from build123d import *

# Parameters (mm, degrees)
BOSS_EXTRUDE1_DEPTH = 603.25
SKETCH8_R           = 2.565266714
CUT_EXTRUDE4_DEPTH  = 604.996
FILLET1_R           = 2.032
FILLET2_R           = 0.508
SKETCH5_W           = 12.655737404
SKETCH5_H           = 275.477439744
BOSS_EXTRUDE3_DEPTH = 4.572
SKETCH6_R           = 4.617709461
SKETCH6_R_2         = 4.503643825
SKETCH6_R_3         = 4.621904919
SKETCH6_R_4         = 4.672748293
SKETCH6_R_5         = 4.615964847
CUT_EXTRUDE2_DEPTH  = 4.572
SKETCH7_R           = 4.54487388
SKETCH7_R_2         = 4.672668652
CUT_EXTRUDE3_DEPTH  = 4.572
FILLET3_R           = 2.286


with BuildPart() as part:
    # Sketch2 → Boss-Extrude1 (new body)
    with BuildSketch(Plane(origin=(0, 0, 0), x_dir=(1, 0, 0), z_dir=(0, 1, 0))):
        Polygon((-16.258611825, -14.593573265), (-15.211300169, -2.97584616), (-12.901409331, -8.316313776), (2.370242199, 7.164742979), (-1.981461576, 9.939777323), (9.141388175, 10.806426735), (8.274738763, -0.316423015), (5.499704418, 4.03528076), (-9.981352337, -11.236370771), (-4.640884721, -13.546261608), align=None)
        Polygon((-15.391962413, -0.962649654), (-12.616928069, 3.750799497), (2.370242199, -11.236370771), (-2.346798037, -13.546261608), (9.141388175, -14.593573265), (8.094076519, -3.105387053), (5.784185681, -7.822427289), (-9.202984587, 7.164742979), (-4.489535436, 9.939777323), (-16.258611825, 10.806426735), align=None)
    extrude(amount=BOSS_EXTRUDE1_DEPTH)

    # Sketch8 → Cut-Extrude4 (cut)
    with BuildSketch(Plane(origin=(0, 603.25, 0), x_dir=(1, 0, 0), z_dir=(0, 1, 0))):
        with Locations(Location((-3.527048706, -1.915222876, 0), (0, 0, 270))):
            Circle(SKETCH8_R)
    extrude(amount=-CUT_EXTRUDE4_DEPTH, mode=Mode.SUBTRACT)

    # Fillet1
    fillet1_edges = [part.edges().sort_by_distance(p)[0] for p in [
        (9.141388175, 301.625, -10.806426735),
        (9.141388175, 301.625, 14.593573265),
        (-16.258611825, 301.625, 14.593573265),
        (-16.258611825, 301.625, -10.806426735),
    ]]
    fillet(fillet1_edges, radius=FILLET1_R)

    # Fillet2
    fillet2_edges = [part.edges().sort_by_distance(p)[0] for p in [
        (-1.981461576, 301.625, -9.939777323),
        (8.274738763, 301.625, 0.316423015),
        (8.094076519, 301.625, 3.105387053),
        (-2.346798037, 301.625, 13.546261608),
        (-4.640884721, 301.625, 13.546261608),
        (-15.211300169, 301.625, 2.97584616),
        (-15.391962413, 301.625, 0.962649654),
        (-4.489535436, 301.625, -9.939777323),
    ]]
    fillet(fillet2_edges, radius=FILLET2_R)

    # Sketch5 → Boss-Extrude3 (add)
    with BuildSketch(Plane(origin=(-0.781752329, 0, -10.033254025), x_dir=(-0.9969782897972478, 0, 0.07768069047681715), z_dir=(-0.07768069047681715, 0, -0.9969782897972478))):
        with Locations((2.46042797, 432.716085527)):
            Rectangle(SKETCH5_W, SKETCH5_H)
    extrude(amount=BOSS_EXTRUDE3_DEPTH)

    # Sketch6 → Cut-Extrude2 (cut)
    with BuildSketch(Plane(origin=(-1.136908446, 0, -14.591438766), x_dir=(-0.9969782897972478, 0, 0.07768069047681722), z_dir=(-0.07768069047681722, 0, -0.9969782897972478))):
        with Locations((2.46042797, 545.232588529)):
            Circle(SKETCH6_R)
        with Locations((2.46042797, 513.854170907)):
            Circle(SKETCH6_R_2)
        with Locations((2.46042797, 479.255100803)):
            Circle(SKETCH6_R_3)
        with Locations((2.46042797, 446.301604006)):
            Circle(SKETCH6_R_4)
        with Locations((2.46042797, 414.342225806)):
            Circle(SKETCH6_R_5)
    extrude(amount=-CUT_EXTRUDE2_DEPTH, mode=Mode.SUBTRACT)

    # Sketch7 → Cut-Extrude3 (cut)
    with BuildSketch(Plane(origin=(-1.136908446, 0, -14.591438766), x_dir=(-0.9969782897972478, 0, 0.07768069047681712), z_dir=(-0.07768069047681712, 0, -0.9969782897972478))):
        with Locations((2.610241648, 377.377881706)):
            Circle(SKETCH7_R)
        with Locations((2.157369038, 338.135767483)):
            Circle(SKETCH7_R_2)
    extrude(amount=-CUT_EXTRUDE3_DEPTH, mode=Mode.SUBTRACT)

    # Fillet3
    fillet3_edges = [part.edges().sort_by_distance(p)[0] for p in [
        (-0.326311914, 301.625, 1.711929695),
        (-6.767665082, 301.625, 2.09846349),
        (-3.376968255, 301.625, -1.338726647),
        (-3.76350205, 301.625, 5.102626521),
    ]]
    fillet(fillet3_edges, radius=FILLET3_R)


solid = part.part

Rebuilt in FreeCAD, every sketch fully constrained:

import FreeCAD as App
import Part
import Sketcher
from FreeCAD import Vector
Q = App.Units.Quantity


def edges_at(feature, points):
    """Names of the edges that pass closest to the given points."""
    edges = feature.Shape.Edges
    near = lambda p: min(range(len(edges)), key=lambda i: edges[i].distToShape(Part.Vertex(*p))[0])
    return sorted({f"Edge{near(p) + 1}" for p in points})

doc = App.newDocument("Part")
body = doc.addObject("PartDesign::Body", "Body")

# Sketch on XZ plane
sketch1 = body.newObject("Sketcher::SketchObject", "Sketch")
sketch1.AttachmentSupport = (doc.getObject("XZ_Plane"), [""])
sketch1.MapMode = "FlatFace"
sketch1.addGeometry([
    Part.LineSegment(Vector(-16.258612, 14.593573, 0), Vector(-4.640885, 13.546262, 0)),  # 0
    Part.LineSegment(Vector(-4.640885, 13.546262, 0), Vector(-9.981352, 11.236371, 0)),  # 1
    Part.LineSegment(Vector(-9.981352, 11.236371, 0), Vector(-3.763502, 5.102627, 0)),  # 2
    Part.LineSegment(Vector(-3.763502, 5.102627, 0), Vector(2.370242, 11.236371, 0)),  # 3
    Part.LineSegment(Vector(2.370242, 11.236371, 0), Vector(-2.346798, 13.546262, 0)),  # 4
    Part.LineSegment(Vector(-2.346798, 13.546262, 0), Vector(9.141388, 14.593573, 0)),  # 5
    Part.LineSegment(Vector(9.141388, 14.593573, 0), Vector(8.094077, 3.105387, 0)),  # 6
    Part.LineSegment(Vector(8.094077, 3.105387, 0), Vector(5.784186, 7.822427, 0)),  # 7
    Part.LineSegment(Vector(5.784186, 7.822427, 0), Vector(-0.326312, 1.71193, 0)),  # 8
    Part.LineSegment(Vector(-0.326312, 1.71193, 0), Vector(5.499704, -4.035281, 0)),  # 9
    Part.LineSegment(Vector(5.499704, -4.035281, 0), Vector(8.274739, 0.316423, 0)),  # 10
    Part.LineSegment(Vector(8.274739, 0.316423, 0), Vector(9.141388, -10.806427, 0)),  # 11
    Part.LineSegment(Vector(9.141388, -10.806427, 0), Vector(-1.981462, -9.939777, 0)),  # 12
    Part.LineSegment(Vector(-1.981462, -9.939777, 0), Vector(2.370242, -7.164743, 0)),  # 13
    Part.LineSegment(Vector(2.370242, -7.164743, 0), Vector(-3.376968, -1.338727, 0)),  # 14
    Part.LineSegment(Vector(-3.376968, -1.338727, 0), Vector(-9.202985, -7.164743, 0)),  # 15
    Part.LineSegment(Vector(-9.202985, -7.164743, 0), Vector(-4.489535, -9.939777, 0)),  # 16
    Part.LineSegment(Vector(-4.489535, -9.939777, 0), Vector(-16.258612, -10.806427, 0)),  # 17
    Part.LineSegment(Vector(-16.258612, -10.806427, 0), Vector(-15.391962, 0.96265, 0)),  # 18
    Part.LineSegment(Vector(-15.391962, 0.96265, 0), Vector(-12.616928, -3.750799, 0)),  # 19
    Part.LineSegment(Vector(-12.616928, -3.750799, 0), Vector(-6.767665, 2.098463, 0)),  # 20
    Part.LineSegment(Vector(-6.767665, 2.098463, 0), Vector(-12.901409, 8.316314, 0)),  # 21
    Part.LineSegment(Vector(-12.901409, 8.316314, 0), Vector(-15.2113, 2.975846, 0)),  # 22
    Part.LineSegment(Vector(-15.2113, 2.975846, 0), Vector(-16.258612, 14.593573, 0)),  # 23
], False)
sketch1.addConstraint([
    Sketcher.Constraint("Coincident", 0, 2, 1, 1),
    Sketcher.Constraint("Coincident", 1, 2, 2, 1),
    Sketcher.Constraint("Coincident", 2, 2, 3, 1),
    Sketcher.Constraint("Coincident", 3, 2, 4, 1),
    Sketcher.Constraint("Coincident", 4, 2, 5, 1),
    Sketcher.Constraint("Coincident", 5, 2, 6, 1),
    Sketcher.Constraint("Coincident", 6, 2, 7, 1),
    Sketcher.Constraint("Coincident", 7, 2, 8, 1),
    Sketcher.Constraint("Coincident", 8, 2, 9, 1),
    Sketcher.Constraint("Coincident", 9, 2, 10, 1),
    Sketcher.Constraint("Coincident", 10, 2, 11, 1),
    Sketcher.Constraint("Coincident", 11, 2, 12, 1),
    Sketcher.Constraint("Coincident", 12, 2, 13, 1),
    Sketcher.Constraint("Coincident", 13, 2, 14, 1),
    Sketcher.Constraint("Coincident", 14, 2, 15, 1),
    Sketcher.Constraint("Coincident", 15, 2, 16, 1),
    Sketcher.Constraint("Coincident", 16, 2, 17, 1),
    Sketcher.Constraint("Coincident", 17, 2, 18, 1),
    Sketcher.Constraint("Coincident", 18, 2, 19, 1),
    Sketcher.Constraint("Coincident", 19, 2, 20, 1),
    Sketcher.Constraint("Coincident", 20, 2, 21, 1),
    Sketcher.Constraint("Coincident", 21, 2, 22, 1),
    Sketcher.Constraint("Coincident", 22, 2, 23, 1),
    Sketcher.Constraint("Coincident", 23, 2, 0, 1),
    Sketcher.Constraint("DistanceX", 9, 2, 7, 2, Q("0.0112 in")),
    Sketcher.Constraint("Distance", 2, Q("8.734099 mm")),
    Sketcher.Constraint("Distance", 21, Q("8.734099 mm")),
    Sketcher.Constraint("DistanceX", 4, 2, -1, 1, Q("2.346798 mm")),
    Sketcher.Constraint("DistanceY", 19, 2, -1, 1, Q("3.750799 mm")),
    Sketcher.Constraint("DistanceX", 22, 2, -1, 1, Q("15.2113 mm")),
    Sketcher.Constraint("DistanceY", 2, 2, 7, 2, Q("2.719801 mm")),
    Sketcher.Constraint("DistanceX", 8, 2, 11, 2, Q("9.4677 mm")),
    Sketcher.Constraint("DistanceX", 12, 2, 10, 2, Q("10.2562 mm")),
    Sketcher.Constraint("DistanceY", 12, 2, 10, 2, Q("10.2562 mm")),
    Sketcher.Constraint("DistanceY", 17, 2, 14, 2, Q("9.4677 mm")),
    Sketcher.Constraint("Distance", 8, Q("8.641549 mm")),
    Sketcher.Constraint("Distance", 11, Q("11.156562 mm")),
    Sketcher.Constraint("Distance", 12, Q("11.156562 mm")),
    Sketcher.Constraint("Distance", 15, Q("8.239231 mm")),
    Sketcher.Constraint("Distance", 16, Q("5.469682 mm")),
    Sketcher.Constraint("Distance", 19, Q("5.469682 mm")),
    Sketcher.Constraint("DistanceY", -1, 1, 0, 2, Q("13.546262 mm")),
    Sketcher.Constraint("DistanceY", -1, 1, 1, 2, Q("11.236371 mm")),
    Sketcher.Constraint("DistanceY", -1, 1, 3, 2, Q("11.236371 mm")),
    Sketcher.Constraint("DistanceY", -1, 1, 4, 2, Q("13.546262 mm")),
    Sketcher.Constraint("DistanceX", -1, 1, 5, 2, Q("9.141388 mm")),
    Sketcher.Constraint("DistanceX", 8, 2, -1, 1, Q("0.326312 mm")),
    Sketcher.Constraint("DistanceY", -1, 1, 8, 2, Q("1.71193 mm")),
    Sketcher.Constraint("DistanceY", 9, 2, -1, 1, Q("4.035281 mm")),
    Sketcher.Constraint("DistanceX", 14, 2, -1, 1, Q("3.376968 mm")),
    Sketcher.Constraint("DistanceX", 17, 2, -1, 1, Q("16.258612 mm")),
    Sketcher.Constraint("DistanceY", -1, 1, 18, 2, Q("0.96265 mm")),
    Sketcher.Constraint("DistanceX", 19, 2, -1, 1, Q("12.616928 mm")),
    Sketcher.Constraint("DistanceX", 21, 2, -1, 1, Q("12.901409 mm")),
    Sketcher.Constraint("DistanceX", 23, 2, -1, 1, Q("16.258612 mm")),
    Sketcher.Constraint("DistanceX", 1, 2, 2, 2, Q("6.21785 mm")),
    Sketcher.Constraint("DistanceX", 4, 2, 3, 2, Q("4.71704 mm")),
    Sketcher.Constraint("DistanceY", 4, 2, 5, 2, Q("1.047312 mm")),
    Sketcher.Constraint("DistanceX", 2, 2, 5, 2, Q("12.90489 mm")),
    Sketcher.Constraint("DistanceX", 6, 2, 5, 2, Q("1.047312 mm")),
    Sketcher.Constraint("DistanceY", 6, 2, 2, 2, Q("1.997239 mm")),
    Sketcher.Constraint("DistanceX", 0, 2, 6, 2, Q("12.734961 mm")),
    Sketcher.Constraint("DistanceX", 14, 2, 13, 2, Q("5.74721 mm")),
    Sketcher.Constraint("DistanceY", 12, 2, 14, 2, Q("8.601051 mm")),
    Sketcher.Constraint("DistanceY", 15, 2, 2, 2, Q("12.26737 mm")),
    Sketcher.Constraint("DistanceX", 15, 2, 16, 2, Q("4.713449 mm")),
    Sketcher.Constraint("DistanceY", 16, 2, 14, 2, Q("8.601051 mm")),
    Sketcher.Constraint("DistanceY", 14, 2, 20, 2, Q("3.43719 mm")),
    Sketcher.Constraint("DistanceY", 20, 2, 21, 2, Q("6.21785 mm")),
    Sketcher.Constraint("DistanceY", 21, 2, 23, 2, Q("6.277259 mm")),
    Sketcher.Constraint("Distance", 13, Q("5.161215 mm")),
    Sketcher.Constraint("Distance", 22, Q("5.818607 mm")),
])
pad1 = body.newObject("PartDesign::Pad", "Pad")
pad1.Profile = sketch1
pad1.Length = Q("23.75 in")
pad1.Reversed = True

# Sketch on XZ plane
sketch2 = body.newObject("Sketcher::SketchObject", "Sketch001")
sketch2.AttachmentSupport = (doc.getObject("XZ_Plane"), [""])
sketch2.MapMode = "FlatFace"
sketch2.AttachmentOffset = App.Placement(Vector(0, 0, -23.75 * 25.4), App.Rotation())
sketch2.addGeometry(Part.Circle(Vector(-3.527049, 1.915223, 0), Vector(0, 0, 1), 2.565267), False)
sketch2.addConstraint([
    Sketcher.Constraint("Diameter", 0, Q("5.130533 mm")),
    Sketcher.Constraint("DistanceX", 0, 3, -1, 1, Q("3.527049 mm")),
    Sketcher.Constraint("DistanceY", -1, 1, 0, 3, Q("1.915223 mm")),
])
pocket1 = body.newObject("PartDesign::Pocket", "Pocket")
pocket1.Profile = sketch2
pocket1.Length = 604.996
pocket1.Reversed = True
doc.recompute()

fillet = body.newObject("PartDesign::Fillet", "Fillet")
fillet.Base = (pocket1, edges_at(pocket1, [
    (9.141, 301.625, -10.806),
    (9.141, 301.625, 14.594),
    (-16.259, 301.625, 14.594),
    (-16.259, 301.625, -10.806),
]))
fillet.Radius = Q("0.08 in")
doc.recompute()

fillet2 = body.newObject("PartDesign::Fillet", "Fillet001")
fillet2.Base = (fillet, edges_at(fillet, [
    (-1.981, 301.625, -9.94),
    (8.275, 301.625, 0.316),
    (8.094, 301.625, 3.105),
    (-2.347, 301.625, 13.546),
    (-4.641, 301.625, 13.546),
    (-15.211, 301.625, 2.976),
    (-15.392, 301.625, 0.963),
    (-4.49, 301.625, -9.94),
]))
fillet2.Radius = Q("0.02 in")

# Sketch on an angled plane
sketch3 = body.newObject("Sketcher::SketchObject", "Sketch002")
sketch3.Placement = App.Placement(Vector(-0.781752, 0, -10.033254), App.Rotation(Vector(-0.99697829, 0, 0.07768069), Vector(0, 1, 0), Vector(-0.07768069, 0, -0.99697829), "ZXY"))
sketch3.addGeometry([
    Part.LineSegment(Vector(-3.867441, 570.454806, 0), Vector(-3.867441, 294.977366, 0)),
    Part.LineSegment(Vector(-3.867441, 294.977366, 0), Vector(8.788297, 294.977366, 0)),
    Part.LineSegment(Vector(8.788297, 294.977366, 0), Vector(8.788297, 570.454806, 0)),
    Part.LineSegment(Vector(8.788297, 570.454806, 0), Vector(-3.867441, 570.454806, 0)),
], False)
sketch3.addConstraint([
    Sketcher.Constraint("Coincident", 0, 2, 1, 1),
    Sketcher.Constraint("Coincident", 1, 2, 2, 1),
    Sketcher.Constraint("Coincident", 2, 2, 3, 1),
    Sketcher.Constraint("Coincident", 3, 2, 0, 1),
    Sketcher.Constraint("Vertical", 0),
    Sketcher.Constraint("Horizontal", 1),
    Sketcher.Constraint("Vertical", 2),
    Sketcher.Constraint("Horizontal", 3),
    Sketcher.Constraint("DistanceY", 0, 2, 0, 1, Q("275.47744 mm")),
    Sketcher.Constraint("DistanceX", 1, 1, 1, 2, Q("12.655737 mm")),
    Sketcher.Constraint("DistanceX", 0, 2, -1, 1, Q("3.867441 mm")),
    Sketcher.Constraint("DistanceY", -1, 1, 0, 2, Q("294.977366 mm")),
])
pad2 = body.newObject("PartDesign::Pad", "Pad001")
pad2.Profile = sketch3
pad2.Length = Q("0.18 in")

# Sketch on an angled plane
sketch4 = body.newObject("Sketcher::SketchObject", "Sketch003")
sketch4.Placement = App.Placement(Vector(-1.136908, 0, -14.591439), App.Rotation(Vector(-0.99697829, 0, 0.07768069), Vector(0, 1, 0), Vector(-0.07768069, 0, -0.99697829), "ZXY"))
sketch4.addGeometry([
    Part.Circle(Vector(2.460428, 545.232589, 0), Vector(0, 0, 1), 4.617709),  # 0
    Part.Circle(Vector(2.460428, 513.854171, 0), Vector(0, 0, 1), 4.503644),  # 1
    Part.Circle(Vector(2.460428, 479.255101, 0), Vector(0, 0, 1), 4.621905),  # 2
    Part.Circle(Vector(2.460428, 446.301604, 0), Vector(0, 0, 1), 4.672748),  # 3
    Part.Circle(Vector(2.460428, 414.342226, 0), Vector(0, 0, 1), 4.615965),  # 4
], False)
sketch4.addConstraint([
    Sketcher.Constraint("Vertical", 0, 3, 1, 3),
    Sketcher.Constraint("Vertical", 1, 3, 2, 3),
    Sketcher.Constraint("Vertical", 2, 3, 3, 3),
    Sketcher.Constraint("Vertical", 3, 3, 4, 3),
    Sketcher.Constraint("Diameter", 0, Q("9.235419 mm")),
    Sketcher.Constraint("Diameter", 2, Q("9.24381 mm")),
    Sketcher.Constraint("Diameter", 4, Q("9.23193 mm")),
    Sketcher.Constraint("Diameter", 1, Q("9.007288 mm")),
    Sketcher.Constraint("Diameter", 3, Q("9.345497 mm")),
    Sketcher.Constraint("DistanceY", -1, 1, 2, 3, Q("479.255101 mm")),
    Sketcher.Constraint("DistanceY", -1, 1, 0, 3, Q("545.232589 mm")),
    Sketcher.Constraint("DistanceY", -1, 1, 1, 3, Q("513.854171 mm")),
    Sketcher.Constraint("DistanceY", 4, 3, 3, 3, Q("31.959378 mm")),
    Sketcher.Constraint("DistanceX", -1, 1, 0, 3, Q("2.460428 mm")),
    Sketcher.Constraint("DistanceY", -1, 1, 3, 3, Q("446.301604 mm")),
])
pocket2 = body.newObject("PartDesign::Pocket", "Pocket001")
pocket2.Profile = sketch4
pocket2.Length = Q("0.18 in")

# Sketch on an angled plane
sketch5 = body.newObject("Sketcher::SketchObject", "Sketch004")
sketch5.Placement = App.Placement(Vector(-1.136908, 0, -14.591439), App.Rotation(Vector(-0.99697829, 0, 0.07768069), Vector(0, 1, 0), Vector(-0.07768069, 0, -0.99697829), "ZXY"))
sketch5.addGeometry([
    Part.Circle(Vector(2.610242, 377.377882, 0), Vector(0, 0, 1), 4.544874),
    Part.Circle(Vector(2.157369, 338.135768, 0), Vector(0, 0, 1), 4.672669),
], False)
sketch5.addConstraint([
    Sketcher.Constraint("Diameter", 0, Q("9.089748 mm")),
    Sketcher.Constraint("Diameter", 1, Q("9.345337 mm")),
    Sketcher.Constraint("DistanceX", -1, 1, 0, 3, Q("2.610242 mm")),
    Sketcher.Constraint("DistanceY", -1, 1, 0, 3, Q("377.377882 mm")),
    Sketcher.Constraint("DistanceX", -1, 1, 1, 3, Q("2.157369 mm")),
    Sketcher.Constraint("DistanceY", -1, 1, 1, 3, Q("338.135768 mm")),
])
pocket3 = body.newObject("PartDesign::Pocket", "Pocket002")
pocket3.Profile = sketch5
pocket3.Length = Q("0.18 in")
doc.recompute()

fillet3 = body.newObject("PartDesign::Fillet", "Fillet002")
fillet3.Base = (pocket3, edges_at(pocket3, [
    (-0.326, 301.625, 1.712),
    (-6.768, 301.625, 2.098),
    (-3.377, 301.625, -1.339),
    (-3.764, 301.625, 5.103),
]))
fillet3.Radius = Q("0.09 in")

doc.recompute()
